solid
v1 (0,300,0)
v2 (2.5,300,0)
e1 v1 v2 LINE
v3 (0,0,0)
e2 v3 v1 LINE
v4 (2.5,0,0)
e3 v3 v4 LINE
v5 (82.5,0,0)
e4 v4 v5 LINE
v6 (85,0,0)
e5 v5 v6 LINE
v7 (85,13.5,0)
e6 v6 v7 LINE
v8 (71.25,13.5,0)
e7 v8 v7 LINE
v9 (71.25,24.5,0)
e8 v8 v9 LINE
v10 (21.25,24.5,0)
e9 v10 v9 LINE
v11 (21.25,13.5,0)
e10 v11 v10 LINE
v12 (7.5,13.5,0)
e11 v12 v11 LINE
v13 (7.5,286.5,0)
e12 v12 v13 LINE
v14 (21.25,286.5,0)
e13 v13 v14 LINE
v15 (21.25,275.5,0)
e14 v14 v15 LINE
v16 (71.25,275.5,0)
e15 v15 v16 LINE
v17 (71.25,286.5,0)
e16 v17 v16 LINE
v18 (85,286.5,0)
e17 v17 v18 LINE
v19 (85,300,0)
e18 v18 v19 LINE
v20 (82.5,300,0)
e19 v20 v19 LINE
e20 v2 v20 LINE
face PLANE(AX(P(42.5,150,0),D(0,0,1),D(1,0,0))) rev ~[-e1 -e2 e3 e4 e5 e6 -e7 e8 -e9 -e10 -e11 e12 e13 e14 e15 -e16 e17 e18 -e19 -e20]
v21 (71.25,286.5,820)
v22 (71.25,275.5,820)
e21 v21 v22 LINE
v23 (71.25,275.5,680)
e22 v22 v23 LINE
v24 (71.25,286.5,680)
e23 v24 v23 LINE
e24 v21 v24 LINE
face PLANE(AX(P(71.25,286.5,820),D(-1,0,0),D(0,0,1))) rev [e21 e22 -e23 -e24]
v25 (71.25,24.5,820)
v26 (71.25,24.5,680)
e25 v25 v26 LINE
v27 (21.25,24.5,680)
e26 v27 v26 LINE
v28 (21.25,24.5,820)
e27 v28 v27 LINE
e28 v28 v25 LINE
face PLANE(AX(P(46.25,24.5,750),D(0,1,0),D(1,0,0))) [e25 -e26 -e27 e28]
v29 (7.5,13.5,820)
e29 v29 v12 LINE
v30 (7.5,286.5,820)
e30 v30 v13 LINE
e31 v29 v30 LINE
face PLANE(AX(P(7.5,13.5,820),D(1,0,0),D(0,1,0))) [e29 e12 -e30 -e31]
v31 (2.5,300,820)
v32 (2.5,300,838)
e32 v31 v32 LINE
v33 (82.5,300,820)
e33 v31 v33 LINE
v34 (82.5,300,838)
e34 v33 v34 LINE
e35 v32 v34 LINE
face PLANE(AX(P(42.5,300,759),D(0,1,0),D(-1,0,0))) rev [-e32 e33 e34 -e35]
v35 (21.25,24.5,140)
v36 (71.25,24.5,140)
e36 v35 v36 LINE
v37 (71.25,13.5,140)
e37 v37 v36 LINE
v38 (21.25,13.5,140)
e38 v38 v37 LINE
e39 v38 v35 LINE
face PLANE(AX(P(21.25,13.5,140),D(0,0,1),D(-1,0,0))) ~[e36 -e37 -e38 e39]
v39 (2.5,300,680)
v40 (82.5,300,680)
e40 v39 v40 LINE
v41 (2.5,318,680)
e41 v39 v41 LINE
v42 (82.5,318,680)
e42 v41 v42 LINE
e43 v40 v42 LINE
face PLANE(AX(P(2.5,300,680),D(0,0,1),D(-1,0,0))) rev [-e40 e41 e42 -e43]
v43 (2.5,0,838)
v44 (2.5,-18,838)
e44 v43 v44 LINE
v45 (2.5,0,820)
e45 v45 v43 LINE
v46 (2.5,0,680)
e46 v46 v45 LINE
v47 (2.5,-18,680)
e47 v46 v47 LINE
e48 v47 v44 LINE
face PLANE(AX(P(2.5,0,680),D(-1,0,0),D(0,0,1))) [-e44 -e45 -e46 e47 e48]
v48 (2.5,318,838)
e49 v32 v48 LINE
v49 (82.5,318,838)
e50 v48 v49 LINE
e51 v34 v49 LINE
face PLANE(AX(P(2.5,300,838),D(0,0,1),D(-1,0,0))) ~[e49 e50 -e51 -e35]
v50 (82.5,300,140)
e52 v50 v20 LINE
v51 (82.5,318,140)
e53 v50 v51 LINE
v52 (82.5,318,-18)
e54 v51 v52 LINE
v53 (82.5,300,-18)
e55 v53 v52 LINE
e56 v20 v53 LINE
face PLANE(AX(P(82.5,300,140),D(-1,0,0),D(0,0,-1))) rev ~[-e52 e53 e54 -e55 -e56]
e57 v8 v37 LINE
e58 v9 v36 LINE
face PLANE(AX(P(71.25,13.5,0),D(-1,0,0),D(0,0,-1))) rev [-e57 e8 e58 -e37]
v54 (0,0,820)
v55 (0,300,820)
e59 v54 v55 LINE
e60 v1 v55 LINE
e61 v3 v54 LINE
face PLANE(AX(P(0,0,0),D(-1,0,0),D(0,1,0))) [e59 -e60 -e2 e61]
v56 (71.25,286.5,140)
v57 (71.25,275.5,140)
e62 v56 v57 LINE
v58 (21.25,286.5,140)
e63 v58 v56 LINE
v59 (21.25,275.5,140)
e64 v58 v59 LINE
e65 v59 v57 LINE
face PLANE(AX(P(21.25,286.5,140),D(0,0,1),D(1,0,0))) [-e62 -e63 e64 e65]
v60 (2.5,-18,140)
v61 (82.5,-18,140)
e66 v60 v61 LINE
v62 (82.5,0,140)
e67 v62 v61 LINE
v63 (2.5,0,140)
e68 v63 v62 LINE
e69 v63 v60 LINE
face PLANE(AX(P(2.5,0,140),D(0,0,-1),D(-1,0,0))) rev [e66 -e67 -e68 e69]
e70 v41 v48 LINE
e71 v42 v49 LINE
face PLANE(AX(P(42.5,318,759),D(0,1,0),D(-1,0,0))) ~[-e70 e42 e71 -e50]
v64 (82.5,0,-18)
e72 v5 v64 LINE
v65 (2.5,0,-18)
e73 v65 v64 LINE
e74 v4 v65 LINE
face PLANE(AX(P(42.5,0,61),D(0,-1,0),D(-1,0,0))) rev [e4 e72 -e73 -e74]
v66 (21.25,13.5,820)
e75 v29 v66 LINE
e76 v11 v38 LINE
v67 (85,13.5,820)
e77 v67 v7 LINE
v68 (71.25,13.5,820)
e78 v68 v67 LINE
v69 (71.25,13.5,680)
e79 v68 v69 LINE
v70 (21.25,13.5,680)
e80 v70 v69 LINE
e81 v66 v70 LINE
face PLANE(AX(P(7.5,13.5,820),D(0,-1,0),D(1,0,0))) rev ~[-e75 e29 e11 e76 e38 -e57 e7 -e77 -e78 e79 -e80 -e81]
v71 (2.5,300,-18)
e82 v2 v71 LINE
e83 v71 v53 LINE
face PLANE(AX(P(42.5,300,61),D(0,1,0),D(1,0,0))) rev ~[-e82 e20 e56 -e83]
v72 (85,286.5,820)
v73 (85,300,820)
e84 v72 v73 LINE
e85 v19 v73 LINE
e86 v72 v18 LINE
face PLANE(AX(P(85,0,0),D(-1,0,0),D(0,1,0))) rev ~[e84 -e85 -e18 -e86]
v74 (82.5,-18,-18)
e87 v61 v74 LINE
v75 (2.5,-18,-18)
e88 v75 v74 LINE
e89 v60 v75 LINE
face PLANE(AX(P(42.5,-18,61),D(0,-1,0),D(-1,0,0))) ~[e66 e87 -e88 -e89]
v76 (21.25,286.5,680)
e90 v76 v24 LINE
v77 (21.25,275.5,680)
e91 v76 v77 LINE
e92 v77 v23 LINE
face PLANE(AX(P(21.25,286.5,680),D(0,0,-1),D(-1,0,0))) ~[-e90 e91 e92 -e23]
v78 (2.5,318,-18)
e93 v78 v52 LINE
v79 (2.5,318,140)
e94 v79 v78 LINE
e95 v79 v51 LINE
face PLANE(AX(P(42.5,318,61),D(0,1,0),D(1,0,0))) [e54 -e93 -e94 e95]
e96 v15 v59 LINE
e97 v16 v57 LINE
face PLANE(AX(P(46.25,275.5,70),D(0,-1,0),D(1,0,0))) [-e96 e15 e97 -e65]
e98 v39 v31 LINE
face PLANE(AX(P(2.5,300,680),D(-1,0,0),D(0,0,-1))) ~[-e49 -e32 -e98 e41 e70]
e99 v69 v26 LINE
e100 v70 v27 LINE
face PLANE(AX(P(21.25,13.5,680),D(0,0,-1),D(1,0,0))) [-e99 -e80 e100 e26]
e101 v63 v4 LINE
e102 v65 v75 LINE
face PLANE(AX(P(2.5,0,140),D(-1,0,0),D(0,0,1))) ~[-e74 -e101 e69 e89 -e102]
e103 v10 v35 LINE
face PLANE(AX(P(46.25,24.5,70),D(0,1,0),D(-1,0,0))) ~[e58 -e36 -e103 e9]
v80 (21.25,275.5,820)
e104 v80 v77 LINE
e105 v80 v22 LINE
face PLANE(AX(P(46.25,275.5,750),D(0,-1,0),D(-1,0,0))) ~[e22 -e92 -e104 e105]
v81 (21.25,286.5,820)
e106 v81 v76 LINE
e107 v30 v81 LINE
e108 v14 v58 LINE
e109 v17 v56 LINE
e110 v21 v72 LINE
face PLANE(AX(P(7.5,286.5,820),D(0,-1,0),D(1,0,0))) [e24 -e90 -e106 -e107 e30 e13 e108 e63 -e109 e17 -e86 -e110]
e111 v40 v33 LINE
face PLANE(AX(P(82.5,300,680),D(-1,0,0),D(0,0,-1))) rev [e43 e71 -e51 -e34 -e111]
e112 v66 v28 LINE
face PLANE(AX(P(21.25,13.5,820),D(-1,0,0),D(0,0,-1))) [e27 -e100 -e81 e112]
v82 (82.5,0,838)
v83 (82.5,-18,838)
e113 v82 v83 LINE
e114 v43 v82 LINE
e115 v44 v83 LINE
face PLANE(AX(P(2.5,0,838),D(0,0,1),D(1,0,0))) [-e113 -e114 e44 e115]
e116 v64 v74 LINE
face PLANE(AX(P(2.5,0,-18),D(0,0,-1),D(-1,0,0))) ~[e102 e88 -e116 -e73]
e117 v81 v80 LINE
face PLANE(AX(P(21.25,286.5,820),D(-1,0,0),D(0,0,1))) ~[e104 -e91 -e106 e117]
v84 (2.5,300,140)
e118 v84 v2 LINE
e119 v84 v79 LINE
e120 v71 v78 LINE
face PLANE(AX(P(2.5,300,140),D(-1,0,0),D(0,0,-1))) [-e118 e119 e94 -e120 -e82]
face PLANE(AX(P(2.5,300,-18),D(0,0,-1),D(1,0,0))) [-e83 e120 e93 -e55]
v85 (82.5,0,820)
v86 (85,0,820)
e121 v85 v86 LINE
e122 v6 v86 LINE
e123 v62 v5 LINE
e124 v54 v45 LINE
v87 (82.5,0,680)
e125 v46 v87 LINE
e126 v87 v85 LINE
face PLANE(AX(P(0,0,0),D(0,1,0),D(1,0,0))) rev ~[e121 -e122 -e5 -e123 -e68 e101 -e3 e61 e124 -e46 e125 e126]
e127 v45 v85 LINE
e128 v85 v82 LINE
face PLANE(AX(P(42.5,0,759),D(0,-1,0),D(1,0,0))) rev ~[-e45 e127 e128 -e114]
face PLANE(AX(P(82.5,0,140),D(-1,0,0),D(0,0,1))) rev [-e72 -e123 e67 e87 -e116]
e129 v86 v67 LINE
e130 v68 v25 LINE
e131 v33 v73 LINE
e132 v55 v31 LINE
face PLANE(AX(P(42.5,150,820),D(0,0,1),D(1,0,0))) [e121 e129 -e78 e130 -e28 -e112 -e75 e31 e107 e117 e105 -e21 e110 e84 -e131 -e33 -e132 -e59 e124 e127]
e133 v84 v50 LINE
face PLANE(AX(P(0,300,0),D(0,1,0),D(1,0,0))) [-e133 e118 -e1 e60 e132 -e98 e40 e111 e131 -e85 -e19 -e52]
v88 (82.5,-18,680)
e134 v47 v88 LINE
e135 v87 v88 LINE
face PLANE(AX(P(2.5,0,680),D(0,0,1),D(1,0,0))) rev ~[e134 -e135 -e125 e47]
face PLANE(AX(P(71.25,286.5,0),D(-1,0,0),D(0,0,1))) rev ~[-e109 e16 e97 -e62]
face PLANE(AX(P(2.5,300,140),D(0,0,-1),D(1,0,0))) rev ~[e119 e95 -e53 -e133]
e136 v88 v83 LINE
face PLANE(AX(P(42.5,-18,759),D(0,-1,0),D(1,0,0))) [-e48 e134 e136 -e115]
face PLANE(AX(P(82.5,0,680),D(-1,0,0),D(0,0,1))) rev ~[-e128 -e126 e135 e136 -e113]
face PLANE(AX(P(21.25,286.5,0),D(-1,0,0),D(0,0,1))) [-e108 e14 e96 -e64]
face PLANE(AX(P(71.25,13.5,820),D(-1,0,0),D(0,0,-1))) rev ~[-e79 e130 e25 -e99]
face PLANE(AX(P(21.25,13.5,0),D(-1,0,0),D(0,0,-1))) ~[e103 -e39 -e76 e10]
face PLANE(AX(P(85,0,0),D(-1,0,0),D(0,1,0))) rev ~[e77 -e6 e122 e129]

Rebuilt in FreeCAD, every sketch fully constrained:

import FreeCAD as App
import Part
import Sketcher

V = App.Vector
Q = App.Units.Quantity

doc = App.newDocument("Part")
body = doc.addObject("PartDesign::Body", "Body")

# Sketch on XY plane
sketch1 = doc.addObject("Sketcher::SketchObject", "Sketch")
body.addObject(sketch1)
sketch1.AttachmentSupport = (doc.XY_Plane, [""])
sketch1.MapMode = "FlatFace"
sketch1.addGeometry([
    Part.LineSegment(V(0, 300, 0), V(0, 0, 0)),
    Part.LineSegment(V(0, 0, 0), V(85, 0, 0)),
    Part.LineSegment(V(85, 0, 0), V(85, 300, 0)),
    Part.LineSegment(V(85, 300, 0), V(0, 300, 0)),
], False)
sketch1.addConstraint([
    Sketcher.Constraint("Coincident", 0, 2, 1, 1),
    Sketcher.Constraint("Coincident", 1, 2, 2, 1),
    Sketcher.Constraint("Coincident", 2, 2, 3, 1),
    Sketcher.Constraint("Coincident", 3, 2, 0, 1),
    Sketcher.Constraint("Vertical", 0),
    Sketcher.Constraint("Horizontal", 1),
    Sketcher.Constraint("Vertical", 2),
    Sketcher.Constraint("Horizontal", 3),
    Sketcher.Constraint("Coincident", 0, 2, -1, 1),
    Sketcher.Constraint("DistanceX", 1, 1, 1, 2, Q("85 mm")),
    Sketcher.Constraint("DistanceY", 0, 2, 0, 1, Q("300 mm")),
])
pad1 = doc.addObject("PartDesign::Pad", "Pad")
body.addObject(pad1)
pad1.Profile = sketch1
pad1.Length = 820

# Sketch on XY plane
sketch2 = doc.addObject("Sketcher::SketchObject", "Sketch001")
body.addObject(sketch2)
sketch2.AttachmentSupport = (doc.XY_Plane, [""])
sketch2.MapMode = "FlatFace"
sketch2.AttachmentOffset = App.Placement(V(0, 0, 820), App.Rotation())
sketch2.addGeometry([
    Part.LineSegment(V(8, 286, 0), V(8, 14, 0)),
    Part.LineSegment(V(8, 14, 0), V(85, 14, 0)),
    Part.LineSegment(V(85, 14, 0), V(85, 286, 0)),
    Part.LineSegment(V(85, 286, 0), V(8, 286, 0)),
], False)
sketch2.addConstraint([
    Sketcher.Constraint("Coincident", 0, 2, 1, 1),
    Sketcher.Constraint("Coincident", 1, 2, 2, 1),
    Sketcher.Constraint("Coincident", 2, 2, 3, 1),
    Sketcher.Constraint("Coincident", 3, 2, 0, 1),
    Sketcher.Constraint("Vertical", 0),
    Sketcher.Constraint("Horizontal", 1),
    Sketcher.Constraint("Vertical", 2),
    Sketcher.Constraint("Horizontal", 3),
    Sketcher.Constraint("DistanceY", 0, 2, 0, 1, Q("273 mm")),
    Sketcher.Constraint("DistanceX", 1, 1, 1, 2, Q("77.5 mm")),
    Sketcher.Constraint("DistanceX", -1, 1, 1, 2, Q("85 mm")),
    Sketcher.Constraint("DistanceY", -1, 1, 0, 2, Q("13.5 mm")),
])
pocket1 = doc.addObject("PartDesign::Pocket", "Pocket")
body.addObject(pocket1)
pocket1.Profile = sketch2
pocket1.Type = "ThroughAll"

# Sketch on XZ plane
sketch3 = doc.addObject("Sketcher::SketchObject", "Sketch002")
body.addObject(sketch3)
sketch3.AttachmentSupport = (doc.XZ_Plane, [""])
sketch3.MapMode = "FlatFace"
sketch3.AttachmentOffset = App.Placement(V(0, 0, -286.5), App.Rotation())
sketch3.addGeometry([
    Part.LineSegment(V(21, 140, 0), V(21, 0, 0)),
    Part.LineSegment(V(21, 0, 0), V(71, 0, 0)),
    Part.LineSegment(V(71, 0, 0), V(71, 140, 0)),
    Part.LineSegment(V(71, 140, 0), V(21, 140, 0)),
], False)
sketch3.addConstraint([
    Sketcher.Constraint("Coincident", 0, 2, 1, 1),
    Sketcher.Constraint("Coincident", 1, 2, 2, 1),
    Sketcher.Constraint("Coincident", 2, 2, 3, 1),
    Sketcher.Constraint("Coincident", 3, 2, 0, 1),
    Sketcher.Constraint("Vertical", 0),
    Sketcher.Constraint("Horizontal", 1),
    Sketcher.Constraint("Vertical", 2),
    Sketcher.Constraint("Horizontal", 3),
    Sketcher.Constraint("PointOnObject", 0, 2, -1),
    Sketcher.Constraint("DistanceX", 1, 1, 1, 2, Q("50 mm")),
    Sketcher.Constraint("DistanceY", 0, 2, 0, 1, Q("140 mm")),
    Sketcher.Constraint("DistanceX", -1, 1, 0, 2, Q("21.25 mm")),
])
pad2 = doc.addObject("PartDesign::Pad", "Pad001")
body.addObject(pad2)
pad2.Profile = sketch3
pad2.Length = 11

# Sketch on XZ plane
sketch4 = doc.addObject("Sketcher::SketchObject", "Sketch003")
body.addObject(sketch4)
sketch4.AttachmentSupport = (doc.XZ_Plane, [""])
sketch4.MapMode = "FlatFace"
sketch4.AttachmentOffset = App.Placement(V(0, 0, -300), App.Rotation())
sketch4.addGeometry([
    Part.LineSegment(V(2, -18, 0), V(2, 140, 0)),
    Part.LineSegment(V(2, 140, 0), V(82, 140, 0)),
    Part.LineSegment(V(82, 140, 0), V(82, -18, 0)),
    Part.LineSegment(V(82, -18, 0), V(2, -18, 0)),
], False)
sketch4.addConstraint([
    Sketcher.Constraint("Coincident", 0, 2, 1, 1),
    Sketcher.Constraint("Coincident", 1, 2, 2, 1),
    Sketcher.Constraint("Coincident", 2, 2, 3, 1),
    Sketcher.Constraint("Coincident", 3, 2, 0, 1),
    Sketcher.Constraint("Vertical", 0),
    Sketcher.Constraint("Horizontal", 1),
    Sketcher.Constraint("Vertical", 2),
    Sketcher.Constraint("Horizontal", 3),
    Sketcher.Constraint("DistanceX", 1, 1, 1, 2, Q("80 mm")),
    Sketcher.Constraint("DistanceY", 0, 1, 0, 2, Q("158 mm")),
    Sketcher.Constraint("DistanceY", -1, 1, 0, 2, Q("140 mm")),
    Sketcher.Constraint("DistanceX", -1, 1, 0, 2, Q("2.5 mm")),
])
pad3 = doc.addObject("PartDesign::Pad", "Pad002")
body.addObject(pad3)
pad3.Profile = sketch4
pad3.Length = 18
pad3.Reversed = True
doc.recompute()

datumplane = doc.addObject("PartDesign::Plane", "DatumPlane")
body.addObject(datumplane)
datumplane.AttachmentSupport = (doc.XZ_Plane, [""])
datumplane.MapMode = "FlatFace"
datumplane.AttachmentOffset = App.Placement(V(0, 0, -150), App.Rotation())
mirrored = doc.addObject("PartDesign::Mirrored", "Mirrored")
body.addObject(mirrored)
mirrored.Originals = [pad2, pad3]
mirrored.MirrorPlane = (datumplane, [""])
body.Tip = mirrored
doc.recompute()

datumplane2 = doc.addObject("PartDesign::Plane", "DatumPlane001")
body.addObject(datumplane2)
datumplane2.AttachmentSupport = (doc.XY_Plane, [""])
datumplane2.MapMode = "FlatFace"
datumplane2.AttachmentOffset = App.Placement(V(0, 0, 410), App.Rotation())
mirrored2 = doc.addObject("PartDesign::Mirrored", "Mirrored001")
body.addObject(mirrored2)
mirrored2.Originals = [pad2, pad3]
mirrored2.MirrorPlane = (datumplane2, [""])
body.Tip = mirrored2

# Sketch on XZ plane
sketch5 = doc.addObject("Sketcher::SketchObject", "Sketch004")
body.addObject(sketch5)
sketch5.AttachmentSupport = (doc.XZ_Plane, [""])
sketch5.MapMode = "FlatFace"
sketch5.AttachmentOffset = App.Placement(V(0, 0, -13.5), App.Rotation())
sketch5.addGeometry([
    Part.LineSegment(V(21, 680, 0), V(21, 820, 0)),
    Part.LineSegment(V(21, 820, 0), V(71, 820, 0)),
    Part.LineSegment(V(71, 820, 0), V(71, 680, 0)),
    Part.LineSegment(V(71, 680, 0), V(21, 680, 0)),
], False)
sketch5.addConstraint([
    Sketcher.Constraint("Coincident", 0, 2, 1, 1),
    Sketcher.Constraint("Coincident", 1, 2, 2, 1),
    Sketcher.Constraint("Coincident", 2, 2, 3, 1),
    Sketcher.Constraint("Coincident", 3, 2, 0, 1),
    Sketcher.Constraint("Vertical", 0),
    Sketcher.Constraint("Horizontal", 1),
    Sketcher.Constraint("Vertical", 2),
    Sketcher.Constraint("Horizontal", 3),
    Sketcher.Constraint("DistanceX", 1, 1, 1, 2, Q("50 mm")),
    Sketcher.Constraint("DistanceY", 0, 1, 0, 2, Q("140 mm")),
    Sketcher.Constraint("DistanceY", -1, 1, 0, 2, Q("820 mm")),
    Sketcher.Constraint("DistanceX", -1, 1, 0, 2, Q("21.25 mm")),
])
pad4 = doc.addObject("PartDesign::Pad", "Pad003")
body.addObject(pad4)
pad4.Profile = sketch5
pad4.Length = 11
pad4.Reversed = True

# Sketch on XZ plane
sketch6 = doc.addObject("Sketcher::SketchObject", "Sketch005")
body.addObject(sketch6)
sketch6.AttachmentSupport = (doc.XZ_Plane, [""])
sketch6.MapMode = "FlatFace"
sketch6.addGeometry([
    Part.LineSegment(V(2, 838, 0), V(2, 680, 0)),
    Part.LineSegment(V(2, 680, 0), V(82, 680, 0)),
    Part.LineSegment(V(82, 680, 0), V(82, 838, 0)),
    Part.LineSegment(V(82, 838, 0), V(2, 838, 0)),
], False)
sketch6.addConstraint([
    Sketcher.Constraint("Coincident", 0, 2, 1, 1),
    Sketcher.Constraint("Coincident", 1, 2, 2, 1),
    Sketcher.Constraint("Coincident", 2, 2, 3, 1),
    Sketcher.Constraint("Coincident", 3, 2, 0, 1),
    Sketcher.Constraint("Vertical", 0),
    Sketcher.Constraint("Horizontal", 1),
    Sketcher.Constraint("Vertical", 2),
    Sketcher.Constraint("Horizontal", 3),
    Sketcher.Constraint("DistanceX", 1, 1, 1, 2, Q("80 mm")),
    Sketcher.Constraint("DistanceY", 0, 2, 0, 1, Q("158 mm")),
    Sketcher.Constraint("DistanceY", -1, 1, 0, 2, Q("680 mm")),
    Sketcher.Constraint("DistanceX", -1, 1, 0, 2, Q("2.5 mm")),
])
pad5 = doc.addObject("PartDesign::Pad", "Pad004")
body.addObject(pad5)
pad5.Profile = sketch6
pad5.Length = 18

doc.recompute()
